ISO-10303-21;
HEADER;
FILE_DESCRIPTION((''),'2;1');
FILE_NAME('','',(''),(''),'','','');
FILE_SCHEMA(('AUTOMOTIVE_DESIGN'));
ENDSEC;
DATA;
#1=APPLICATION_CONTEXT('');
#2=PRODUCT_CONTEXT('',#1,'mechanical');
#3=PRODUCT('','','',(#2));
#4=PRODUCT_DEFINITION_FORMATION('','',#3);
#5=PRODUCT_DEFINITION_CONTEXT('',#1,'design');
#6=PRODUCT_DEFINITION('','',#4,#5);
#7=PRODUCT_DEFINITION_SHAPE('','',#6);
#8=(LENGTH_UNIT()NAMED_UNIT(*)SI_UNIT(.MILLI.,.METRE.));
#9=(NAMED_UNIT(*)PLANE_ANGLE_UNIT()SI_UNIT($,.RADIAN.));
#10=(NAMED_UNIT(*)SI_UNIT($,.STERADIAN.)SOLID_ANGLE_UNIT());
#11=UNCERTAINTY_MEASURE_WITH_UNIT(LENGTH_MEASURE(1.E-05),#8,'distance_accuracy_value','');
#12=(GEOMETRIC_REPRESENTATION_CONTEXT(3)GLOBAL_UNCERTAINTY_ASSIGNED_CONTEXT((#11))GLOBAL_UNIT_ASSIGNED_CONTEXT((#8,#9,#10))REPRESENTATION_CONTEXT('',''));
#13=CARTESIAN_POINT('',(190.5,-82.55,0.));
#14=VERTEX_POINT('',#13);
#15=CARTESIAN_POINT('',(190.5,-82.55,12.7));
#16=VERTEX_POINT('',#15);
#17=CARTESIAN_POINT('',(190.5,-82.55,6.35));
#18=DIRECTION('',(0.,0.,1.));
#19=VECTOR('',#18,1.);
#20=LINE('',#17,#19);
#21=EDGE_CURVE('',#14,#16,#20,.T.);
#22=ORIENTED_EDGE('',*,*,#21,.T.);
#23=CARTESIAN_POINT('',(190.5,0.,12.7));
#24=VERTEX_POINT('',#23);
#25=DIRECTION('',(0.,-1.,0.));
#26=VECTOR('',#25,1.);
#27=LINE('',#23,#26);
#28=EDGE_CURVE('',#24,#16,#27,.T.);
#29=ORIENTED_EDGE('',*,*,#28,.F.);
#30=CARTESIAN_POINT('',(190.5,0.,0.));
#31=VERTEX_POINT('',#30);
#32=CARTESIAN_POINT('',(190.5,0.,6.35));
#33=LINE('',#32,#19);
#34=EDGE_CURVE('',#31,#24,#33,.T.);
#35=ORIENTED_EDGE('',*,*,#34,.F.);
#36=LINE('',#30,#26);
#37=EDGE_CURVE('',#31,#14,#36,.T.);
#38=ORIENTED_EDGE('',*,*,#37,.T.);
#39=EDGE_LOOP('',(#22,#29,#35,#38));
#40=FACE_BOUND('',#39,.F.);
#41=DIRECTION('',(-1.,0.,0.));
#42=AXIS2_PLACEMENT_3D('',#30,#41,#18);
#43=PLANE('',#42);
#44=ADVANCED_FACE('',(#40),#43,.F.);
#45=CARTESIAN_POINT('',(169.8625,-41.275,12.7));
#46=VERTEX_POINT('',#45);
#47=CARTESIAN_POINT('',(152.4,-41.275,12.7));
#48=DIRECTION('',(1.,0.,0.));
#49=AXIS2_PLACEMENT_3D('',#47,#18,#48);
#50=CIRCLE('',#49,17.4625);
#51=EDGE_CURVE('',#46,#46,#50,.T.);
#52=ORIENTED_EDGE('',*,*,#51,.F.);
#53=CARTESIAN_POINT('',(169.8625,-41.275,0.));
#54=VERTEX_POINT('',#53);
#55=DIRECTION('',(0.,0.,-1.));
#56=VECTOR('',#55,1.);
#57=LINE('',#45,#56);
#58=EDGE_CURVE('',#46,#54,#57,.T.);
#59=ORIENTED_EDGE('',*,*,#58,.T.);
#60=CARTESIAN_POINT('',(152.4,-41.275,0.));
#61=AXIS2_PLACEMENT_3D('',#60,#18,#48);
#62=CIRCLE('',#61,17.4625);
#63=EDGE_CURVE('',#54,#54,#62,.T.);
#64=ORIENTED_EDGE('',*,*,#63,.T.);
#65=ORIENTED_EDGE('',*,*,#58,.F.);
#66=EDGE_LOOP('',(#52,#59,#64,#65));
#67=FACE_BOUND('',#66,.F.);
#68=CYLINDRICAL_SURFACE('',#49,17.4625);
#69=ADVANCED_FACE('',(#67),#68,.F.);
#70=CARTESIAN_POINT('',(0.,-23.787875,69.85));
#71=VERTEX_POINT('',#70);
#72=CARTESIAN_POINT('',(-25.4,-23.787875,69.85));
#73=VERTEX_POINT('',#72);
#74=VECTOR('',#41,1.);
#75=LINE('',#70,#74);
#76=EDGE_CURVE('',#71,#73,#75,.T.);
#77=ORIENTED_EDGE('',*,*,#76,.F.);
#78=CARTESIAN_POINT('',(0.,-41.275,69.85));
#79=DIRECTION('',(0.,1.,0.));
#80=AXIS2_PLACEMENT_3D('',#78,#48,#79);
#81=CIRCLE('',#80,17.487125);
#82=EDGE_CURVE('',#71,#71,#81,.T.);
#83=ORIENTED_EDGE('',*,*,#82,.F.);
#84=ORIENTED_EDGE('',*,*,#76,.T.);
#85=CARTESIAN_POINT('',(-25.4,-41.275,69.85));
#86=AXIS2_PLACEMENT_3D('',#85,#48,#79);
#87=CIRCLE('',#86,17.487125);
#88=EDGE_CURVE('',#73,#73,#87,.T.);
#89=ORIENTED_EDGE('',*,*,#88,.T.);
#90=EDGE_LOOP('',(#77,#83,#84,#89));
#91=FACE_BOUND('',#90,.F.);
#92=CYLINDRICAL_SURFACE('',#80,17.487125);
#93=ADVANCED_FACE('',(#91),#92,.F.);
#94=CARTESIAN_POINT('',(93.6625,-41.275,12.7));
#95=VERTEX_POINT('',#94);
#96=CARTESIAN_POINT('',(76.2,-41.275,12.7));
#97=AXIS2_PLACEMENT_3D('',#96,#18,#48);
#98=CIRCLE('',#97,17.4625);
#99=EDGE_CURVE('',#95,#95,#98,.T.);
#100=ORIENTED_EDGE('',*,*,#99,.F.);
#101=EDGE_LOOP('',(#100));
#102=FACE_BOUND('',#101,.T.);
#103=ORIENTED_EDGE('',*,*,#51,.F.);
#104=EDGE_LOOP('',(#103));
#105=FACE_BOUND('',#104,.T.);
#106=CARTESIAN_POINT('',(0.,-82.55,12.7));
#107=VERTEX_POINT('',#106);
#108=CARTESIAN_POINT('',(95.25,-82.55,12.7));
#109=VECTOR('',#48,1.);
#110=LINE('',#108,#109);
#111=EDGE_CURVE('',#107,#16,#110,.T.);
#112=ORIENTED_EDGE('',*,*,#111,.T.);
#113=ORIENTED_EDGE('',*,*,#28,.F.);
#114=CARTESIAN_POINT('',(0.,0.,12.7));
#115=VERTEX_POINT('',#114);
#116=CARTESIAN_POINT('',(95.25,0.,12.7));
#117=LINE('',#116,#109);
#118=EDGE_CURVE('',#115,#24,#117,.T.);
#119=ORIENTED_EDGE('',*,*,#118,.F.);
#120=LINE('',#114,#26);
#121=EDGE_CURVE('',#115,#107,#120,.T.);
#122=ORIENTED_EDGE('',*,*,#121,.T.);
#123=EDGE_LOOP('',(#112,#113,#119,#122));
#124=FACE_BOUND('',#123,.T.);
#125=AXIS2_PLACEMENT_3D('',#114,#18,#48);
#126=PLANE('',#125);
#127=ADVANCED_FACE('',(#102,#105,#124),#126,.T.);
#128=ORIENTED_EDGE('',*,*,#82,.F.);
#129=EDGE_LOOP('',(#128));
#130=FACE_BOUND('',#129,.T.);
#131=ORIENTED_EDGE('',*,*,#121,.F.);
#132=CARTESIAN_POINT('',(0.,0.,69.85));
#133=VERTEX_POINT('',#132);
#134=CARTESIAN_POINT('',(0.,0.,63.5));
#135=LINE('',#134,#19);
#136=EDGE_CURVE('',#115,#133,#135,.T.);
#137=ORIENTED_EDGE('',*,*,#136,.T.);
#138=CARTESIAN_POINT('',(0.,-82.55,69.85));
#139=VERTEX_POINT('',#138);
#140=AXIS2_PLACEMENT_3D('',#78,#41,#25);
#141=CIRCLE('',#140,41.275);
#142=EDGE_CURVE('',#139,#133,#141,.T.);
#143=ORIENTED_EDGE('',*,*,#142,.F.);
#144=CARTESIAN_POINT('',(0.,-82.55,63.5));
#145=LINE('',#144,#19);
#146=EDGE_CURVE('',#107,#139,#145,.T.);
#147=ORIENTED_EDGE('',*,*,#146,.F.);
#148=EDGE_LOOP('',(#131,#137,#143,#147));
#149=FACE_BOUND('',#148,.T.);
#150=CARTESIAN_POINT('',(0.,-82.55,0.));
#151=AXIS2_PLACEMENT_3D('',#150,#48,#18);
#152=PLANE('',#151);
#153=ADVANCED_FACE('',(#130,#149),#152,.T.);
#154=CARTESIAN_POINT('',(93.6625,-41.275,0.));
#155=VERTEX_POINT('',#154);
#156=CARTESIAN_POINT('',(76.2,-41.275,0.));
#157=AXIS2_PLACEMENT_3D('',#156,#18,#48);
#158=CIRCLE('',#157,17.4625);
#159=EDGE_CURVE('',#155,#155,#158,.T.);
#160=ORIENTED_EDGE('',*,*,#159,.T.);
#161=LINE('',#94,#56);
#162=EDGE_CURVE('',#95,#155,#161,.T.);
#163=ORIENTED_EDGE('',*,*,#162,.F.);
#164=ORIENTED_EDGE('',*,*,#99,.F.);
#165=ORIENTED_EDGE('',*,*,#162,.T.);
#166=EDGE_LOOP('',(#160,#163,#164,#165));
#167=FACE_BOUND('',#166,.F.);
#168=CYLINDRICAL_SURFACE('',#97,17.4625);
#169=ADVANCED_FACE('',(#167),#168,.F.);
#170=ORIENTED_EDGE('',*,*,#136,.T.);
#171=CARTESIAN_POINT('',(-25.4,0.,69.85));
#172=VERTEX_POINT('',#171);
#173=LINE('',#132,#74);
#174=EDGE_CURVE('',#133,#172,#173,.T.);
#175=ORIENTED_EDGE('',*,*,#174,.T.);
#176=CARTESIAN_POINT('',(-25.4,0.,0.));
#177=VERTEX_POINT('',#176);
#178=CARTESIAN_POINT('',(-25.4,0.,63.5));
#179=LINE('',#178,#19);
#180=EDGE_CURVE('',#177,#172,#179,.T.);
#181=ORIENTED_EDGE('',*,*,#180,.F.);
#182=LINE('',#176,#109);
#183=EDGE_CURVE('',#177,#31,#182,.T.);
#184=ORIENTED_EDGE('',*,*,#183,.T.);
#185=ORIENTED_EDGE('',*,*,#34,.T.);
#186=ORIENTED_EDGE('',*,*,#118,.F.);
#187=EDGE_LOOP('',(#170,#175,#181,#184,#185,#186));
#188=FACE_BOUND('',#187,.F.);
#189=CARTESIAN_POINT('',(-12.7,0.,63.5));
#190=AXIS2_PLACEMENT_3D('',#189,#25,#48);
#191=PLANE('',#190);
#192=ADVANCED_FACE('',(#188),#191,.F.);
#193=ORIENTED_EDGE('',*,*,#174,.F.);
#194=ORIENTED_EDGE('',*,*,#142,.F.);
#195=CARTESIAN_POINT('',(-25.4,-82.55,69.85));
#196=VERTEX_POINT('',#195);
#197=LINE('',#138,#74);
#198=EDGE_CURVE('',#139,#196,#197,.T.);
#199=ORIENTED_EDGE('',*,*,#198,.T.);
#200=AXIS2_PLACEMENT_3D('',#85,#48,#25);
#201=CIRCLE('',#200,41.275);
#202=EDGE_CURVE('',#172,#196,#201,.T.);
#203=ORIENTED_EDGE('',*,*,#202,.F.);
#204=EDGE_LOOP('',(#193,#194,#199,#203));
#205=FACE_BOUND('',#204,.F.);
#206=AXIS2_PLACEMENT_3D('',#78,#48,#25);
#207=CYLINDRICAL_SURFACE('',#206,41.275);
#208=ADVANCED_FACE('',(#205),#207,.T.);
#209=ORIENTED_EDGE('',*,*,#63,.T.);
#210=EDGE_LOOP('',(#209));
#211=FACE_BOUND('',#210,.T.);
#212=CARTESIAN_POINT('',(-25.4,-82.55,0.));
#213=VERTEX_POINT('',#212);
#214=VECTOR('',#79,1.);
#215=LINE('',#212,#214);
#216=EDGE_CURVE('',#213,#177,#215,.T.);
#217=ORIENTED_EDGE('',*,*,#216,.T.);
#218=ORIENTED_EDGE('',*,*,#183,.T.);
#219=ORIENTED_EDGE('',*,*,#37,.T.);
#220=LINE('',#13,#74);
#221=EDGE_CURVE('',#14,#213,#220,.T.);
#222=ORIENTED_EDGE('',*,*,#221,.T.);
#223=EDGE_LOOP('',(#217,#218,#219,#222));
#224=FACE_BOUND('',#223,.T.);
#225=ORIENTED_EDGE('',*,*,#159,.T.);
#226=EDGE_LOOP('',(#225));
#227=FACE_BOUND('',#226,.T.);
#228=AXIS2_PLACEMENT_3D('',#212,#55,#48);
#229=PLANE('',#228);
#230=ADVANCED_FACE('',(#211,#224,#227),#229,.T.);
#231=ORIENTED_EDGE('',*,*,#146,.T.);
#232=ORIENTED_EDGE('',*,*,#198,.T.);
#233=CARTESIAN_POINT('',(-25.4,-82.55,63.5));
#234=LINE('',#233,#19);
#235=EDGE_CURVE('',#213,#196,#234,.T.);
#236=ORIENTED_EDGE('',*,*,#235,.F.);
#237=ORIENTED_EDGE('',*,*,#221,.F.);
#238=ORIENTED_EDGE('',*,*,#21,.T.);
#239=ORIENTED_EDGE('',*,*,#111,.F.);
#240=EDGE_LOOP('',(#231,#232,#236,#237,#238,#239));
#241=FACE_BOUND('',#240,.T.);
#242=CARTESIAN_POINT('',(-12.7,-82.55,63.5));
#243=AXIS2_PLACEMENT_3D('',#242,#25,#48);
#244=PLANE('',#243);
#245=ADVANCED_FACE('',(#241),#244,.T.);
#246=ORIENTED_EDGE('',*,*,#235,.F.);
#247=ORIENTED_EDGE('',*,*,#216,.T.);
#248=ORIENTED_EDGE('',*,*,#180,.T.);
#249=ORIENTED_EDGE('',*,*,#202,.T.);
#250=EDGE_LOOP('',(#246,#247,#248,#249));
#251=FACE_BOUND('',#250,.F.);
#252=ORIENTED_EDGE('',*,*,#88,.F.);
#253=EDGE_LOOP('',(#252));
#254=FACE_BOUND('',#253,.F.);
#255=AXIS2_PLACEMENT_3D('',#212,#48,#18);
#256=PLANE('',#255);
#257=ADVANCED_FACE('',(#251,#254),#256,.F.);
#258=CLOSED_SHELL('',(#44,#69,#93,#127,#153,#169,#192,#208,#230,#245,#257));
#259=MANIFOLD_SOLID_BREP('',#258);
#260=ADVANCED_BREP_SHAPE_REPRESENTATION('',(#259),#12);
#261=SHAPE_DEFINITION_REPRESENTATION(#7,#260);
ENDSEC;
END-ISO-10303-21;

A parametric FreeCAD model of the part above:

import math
import FreeCAD as App
import Part
import Sketcher
from FreeCAD import Vector
Q = App.Units.Quantity

doc = App.newDocument("Part")
body = doc.addObject("PartDesign::Body", "Body")

sketch1 = body.newObject("Sketcher::SketchObject", "Sketch")
sketch1.AttachmentSupport = (doc.getObject("XZ_Plane"), [""])
sketch1.MapMode = "FlatFace"
sketch1.addGeometry(Part.LineSegment(Vector(0, 13, 0), Vector(0, 0, 0)), False)
sketch1.addGeometry(Part.LineSegment(Vector(0, 0, 0), Vector(190, 0, 0)), False)
sketch1.addGeometry(Part.LineSegment(Vector(190, 0, 0), Vector(190, 13, 0)), False)
sketch1.addGeometry(Part.LineSegment(Vector(190, 13, 0), Vector(0, 13, 0)), False)
sketch1.addConstraint(Sketcher.Constraint("Coincident", 0, 2, 1, 1))
sketch1.addConstraint(Sketcher.Constraint("Coincident", 1, 2, 2, 1))
sketch1.addConstraint(Sketcher.Constraint("Coincident", 2, 2, 3, 1))
sketch1.addConstraint(Sketcher.Constraint("Coincident", 3, 2, 0, 1))
sketch1.addConstraint(Sketcher.Constraint("Vertical", 0))
sketch1.addConstraint(Sketcher.Constraint("Horizontal", 1))
sketch1.addConstraint(Sketcher.Constraint("Vertical", 2))
sketch1.addConstraint(Sketcher.Constraint("Horizontal", 3))
sketch1.addConstraint(Sketcher.Constraint("Coincident", 0, 2, -1, 1))
sketch1.addConstraint(Sketcher.Constraint("DistanceX", 1, 1, 1, 2, Q("7.5 in")))
sketch1.addConstraint(Sketcher.Constraint("DistanceY", 0, 2, 0, 1, Q("0.5 in")))
pad1 = body.newObject("PartDesign::Pad", "Pad")
pad1.Profile = sketch1
pad1.Length = Q("3.25 in")

sketch2 = body.newObject("Sketcher::SketchObject", "Sketch001")
sketch2.AttachmentSupport = (doc.getObject("XZ_Plane"), [""])
sketch2.MapMode = "FlatFace"
sketch2.AttachmentOffset = App.Placement(Vector(0, 0, 3.25 * 25.4), App.Rotation())
sketch2.addGeometry(Part.LineSegment(Vector(-25, 127, 0), Vector(-25, 0, 0)), False)
sketch2.addGeometry(Part.LineSegment(Vector(-25, 0, 0), Vector(0, 0, 0)), False)
sketch2.addGeometry(Part.LineSegment(Vector(0, 0, 0), Vector(0, 127, 0)), False)
sketch2.addGeometry(Part.LineSegment(Vector(0, 127, 0), Vector(-25, 127, 0)), False)
sketch2.addConstraint(Sketcher.Constraint("Coincident", 0, 2, 1, 1))
sketch2.addConstraint(Sketcher.Constraint("Coincident", 1, 2, 2, 1))
sketch2.addConstraint(Sketcher.Constraint("Coincident", 2, 2, 3, 1))
sketch2.addConstraint(Sketcher.Constraint("Coincident", 3, 2, 0, 1))
sketch2.addConstraint(Sketcher.Constraint("Vertical", 0))
sketch2.addConstraint(Sketcher.Constraint("Horizontal", 1))
sketch2.addConstraint(Sketcher.Constraint("Vertical", 2))
sketch2.addConstraint(Sketcher.Constraint("Horizontal", 3))
sketch2.addConstraint(Sketcher.Constraint("Coincident", 1, 2, -1, 1))
sketch2.addConstraint(Sketcher.Constraint("DistanceX", 1, 1, 1, 2, Q("1 in")))
sketch2.addConstraint(Sketcher.Constraint("DistanceY", 0, 2, 0, 1, Q("5 in")))
pad2 = body.newObject("PartDesign::Pad", "Pad001")
pad2.Profile = sketch2
pad2.Length = Q("3.25 in")
pad2.Reversed = True

sketch3 = body.newObject("Sketcher::SketchObject", "Sketch002")
sketch3.AttachmentSupport = (doc.getObject("YZ_Plane"), [""])
sketch3.MapMode = "FlatFace"
sketch3.addGeometry(Part.ArcOfCircle(Part.Circle(Vector(-41, 70, 0), Vector(0, 0, 1), 41), math.radians(0), math.radians(180)), False)
sketch3.addGeometry(Part.LineSegment(Vector(0, 70, 0), Vector(0, 127, 0)), False)
sketch3.addGeometry(Part.LineSegment(Vector(0, 127, 0), Vector(-83, 127, 0)), False)
sketch3.addGeometry(Part.LineSegment(Vector(-83, 127, 0), Vector(-83, 70, 0)), False)
sketch3.addConstraint(Sketcher.Constraint("Tangent", 0, 1, 1, 1))
sketch3.addConstraint(Sketcher.Constraint("Coincident", 1, 2, 2, 1))
sketch3.addConstraint(Sketcher.Constraint("Coincident", 2, 2, 3, 1))
sketch3.addConstraint(Sketcher.Constraint("Tangent", 3, 2, 0, 2))
sketch3.addConstraint(Sketcher.Constraint("Vertical", 1))
sketch3.addConstraint(Sketcher.Constraint("Horizontal", 2))
sketch3.addConstraint(Sketcher.Constraint("Vertical", 3))
sketch3.addConstraint(Sketcher.Constraint("PointOnObject", 0, 1, -2))
sketch3.addConstraint(Sketcher.Constraint("DistanceY", -1, 1, 1, 2, Q("5 in")))
sketch3.addConstraint(Sketcher.Constraint("Radius", 0, Q("1.625 in")))
sketch3.addConstraint(Sketcher.Constraint("DistanceY", 1, 1, 1, 2, Q("2.25 in")))
pocket1 = body.newObject("PartDesign::Pocket", "Pocket")
pocket1.Profile = sketch3
pocket1.Type = "ThroughAll"

sketch4 = body.newObject("Sketcher::SketchObject", "Sketch003")
sketch4.AttachmentSupport = (doc.getObject("YZ_Plane"), [""])
sketch4.MapMode = "FlatFace"
sketch4.addGeometry(Part.Circle(Vector(-41, 70, 0), Vector(0, 0, 1), 17), False)
sketch4.addConstraint(Sketcher.Constraint("DistanceY", -1, 1, 0, 3, Q("2.75 in")))
sketch4.addConstraint(Sketcher.Constraint("Diameter", 0, 34.97425))
sketch4.addConstraint(Sketcher.Constraint("DistanceX", 0, 3, -1, 1, Q("1.625 in")))
pocket2 = body.newObject("PartDesign::Pocket", "Pocket001")
pocket2.Profile = sketch4
pocket2.Type = "ThroughAll"

sketch5 = body.newObject("Sketcher::SketchObject", "Sketch004")
sketch5.AttachmentSupport = (doc.getObject("XY_Plane"), [""])
sketch5.MapMode = "FlatFace"
sketch5.AttachmentOffset = App.Placement(Vector(0, 0, 0.5 * 25.4), App.Rotation())
sketch5.addGeometry(Part.Circle(Vector(76, -41, 0), Vector(0, 0, 1), 17), False)
sketch5.addGeometry(Part.Circle(Vector(152, -41, 0), Vector(0, 0, 1), 17), False)
sketch5.addConstraint(Sketcher.Constraint("Equal", 0, 1))
sketch5.addConstraint(Sketcher.Constraint("Horizontal", 0, 3, 1, 3))
sketch5.addConstraint(Sketcher.Constraint("Diameter", 0, Q("1.375 in")))
sketch5.addConstraint(Sketcher.Constraint("DistanceX", -1, 1, 0, 3, Q("3 in")))
sketch5.addConstraint(Sketcher.Constraint("DistanceX", -1, 1, 1, 3, Q("6 in")))
sketch5.addConstraint(Sketcher.Constraint("DistanceY", 0, 3, -1, 1, Q("1.625 in")))
pocket3 = body.newObject("PartDesign::Pocket", "Pocket002")
pocket3.Profile = sketch5
pocket3.Length = Q("1 in")

doc.recompute()
